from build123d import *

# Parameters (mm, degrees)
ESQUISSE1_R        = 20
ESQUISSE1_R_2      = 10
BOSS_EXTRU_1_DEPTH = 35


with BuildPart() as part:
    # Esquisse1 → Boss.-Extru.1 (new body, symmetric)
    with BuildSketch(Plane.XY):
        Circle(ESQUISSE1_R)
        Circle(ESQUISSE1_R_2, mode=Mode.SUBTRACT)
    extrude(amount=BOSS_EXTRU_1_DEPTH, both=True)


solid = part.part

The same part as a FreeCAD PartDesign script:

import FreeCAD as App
import Part
import Sketcher

V = App.Vector

doc = App.newDocument("Part")
params = doc.addObject("Spreadsheet::Sheet", "Params")
for row, (alias, value) in enumerate([
    ("sketch1_diameter", "40 mm"),
    ("sketch1_diameter2", "20 mm"),
    ("pad1_length", "70 mm"),
], start=1):
    params.set(f"A{row}", alias)
    params.set(f"B{row}", "=" + value)
    params.setAlias(f"B{row}", alias)

body = doc.addObject("PartDesign::Body", "Body")

sketch1 = body.newObject("Sketcher::SketchObject", "Sketch")
sketch1.AttachmentSupport = (doc.getObject("XY_Plane"), [""])
sketch1.MapMode = "FlatFace"
sketch1.addGeometry(Part.Circle(V(0, 0, 0), V(0, 0, 1), 20), False)
sketch1.addGeometry(Part.Circle(V(0, 0, 0), V(0, 0, 1), 10), False)
sketch1.addConstraint(Sketcher.Constraint("Coincident", 0, 3, -1, 1))
sketch1.addConstraint(Sketcher.Constraint("Coincident", 1, 3, -1, 1))
sketch1.addConstraint(Sketcher.Constraint("Diameter", 0, 40.0))
sketch1.addConstraint(Sketcher.Constraint("Diameter", 1, 20.0))
sketch1.setExpression("Constraints[2]", "Params.sketch1_diameter")
sketch1.setExpression("Constraints[3]", "Params.sketch1_diameter2")
pad1 = body.newObject("PartDesign::Pad", "Pad")
pad1.Profile = sketch1
pad1.setExpression("Length", "Params.pad1_length")
pad1.Midplane = True

doc.recompute()
